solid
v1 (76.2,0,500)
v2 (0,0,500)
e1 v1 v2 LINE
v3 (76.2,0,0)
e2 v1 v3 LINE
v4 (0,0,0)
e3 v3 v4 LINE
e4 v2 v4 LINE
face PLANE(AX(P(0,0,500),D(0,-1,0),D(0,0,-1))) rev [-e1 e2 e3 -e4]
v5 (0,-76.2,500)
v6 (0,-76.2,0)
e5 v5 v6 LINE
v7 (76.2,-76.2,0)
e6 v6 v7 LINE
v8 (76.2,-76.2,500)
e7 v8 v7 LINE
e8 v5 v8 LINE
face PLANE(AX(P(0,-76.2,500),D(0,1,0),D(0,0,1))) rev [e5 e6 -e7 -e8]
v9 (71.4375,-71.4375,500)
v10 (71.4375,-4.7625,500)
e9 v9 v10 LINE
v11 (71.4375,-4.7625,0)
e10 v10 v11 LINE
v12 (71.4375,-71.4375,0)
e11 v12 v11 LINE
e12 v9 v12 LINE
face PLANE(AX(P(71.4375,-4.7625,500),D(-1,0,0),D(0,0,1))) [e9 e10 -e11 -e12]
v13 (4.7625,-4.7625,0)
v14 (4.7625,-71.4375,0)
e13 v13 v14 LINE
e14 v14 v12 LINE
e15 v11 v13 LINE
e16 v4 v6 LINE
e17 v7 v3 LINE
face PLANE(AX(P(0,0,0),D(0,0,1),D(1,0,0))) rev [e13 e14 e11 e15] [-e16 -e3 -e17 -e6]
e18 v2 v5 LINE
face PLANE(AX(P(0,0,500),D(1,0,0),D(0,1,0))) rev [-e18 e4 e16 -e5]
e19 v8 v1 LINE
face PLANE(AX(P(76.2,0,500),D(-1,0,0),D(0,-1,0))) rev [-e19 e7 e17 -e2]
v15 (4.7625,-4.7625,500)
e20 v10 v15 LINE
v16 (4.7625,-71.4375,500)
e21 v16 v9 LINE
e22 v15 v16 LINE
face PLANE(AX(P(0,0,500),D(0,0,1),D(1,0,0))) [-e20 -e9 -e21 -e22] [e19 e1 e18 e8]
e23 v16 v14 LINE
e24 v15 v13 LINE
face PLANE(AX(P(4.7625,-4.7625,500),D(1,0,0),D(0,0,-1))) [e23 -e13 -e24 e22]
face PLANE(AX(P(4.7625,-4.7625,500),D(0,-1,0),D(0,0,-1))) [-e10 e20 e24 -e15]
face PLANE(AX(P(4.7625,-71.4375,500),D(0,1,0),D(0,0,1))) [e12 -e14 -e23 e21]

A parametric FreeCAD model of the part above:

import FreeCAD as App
import Part
import Sketcher
from FreeCAD import Vector
Q = App.Units.Quantity


def add_polygon(sketch, points):
    """Adds a closed chain of lines whose ends are joined by coincident constraints."""
    first, n = sketch.GeometryCount, len(points)
    for a, b in zip(points, points[1:] + points[:1]):
        sketch.addGeometry(Part.LineSegment(App.Vector(*a, 0), App.Vector(*b, 0)), False)
    for i in range(n):
        sketch.addConstraint(Sketcher.Constraint("Coincident", first + i, 2, first + (i + 1) % n, 1))

doc = App.newDocument("Part")
body = doc.addObject("PartDesign::Body", "Body")

# Sketch on XY plane
sketch1 = body.newObject("Sketcher::SketchObject", "Sketch")
sketch1.AttachmentSupport = (doc.getObject("XY_Plane"), [""])
sketch1.MapMode = "FlatFace"
add_polygon(sketch1, [(0, 0), (0, -76.2), (76.2, -76.2), (76.2, 0)])  # lines 0-3
add_polygon(sketch1, [(71.4375, -71.4375), (4.7625, -71.4375), (4.7625, -4.7625), (71.4375, -4.7625)])  # lines 4-7
sketch1.addConstraint([
    Sketcher.Constraint("Vertical", 0),
    Sketcher.Constraint("Horizontal", 1),
    Sketcher.Constraint("Vertical", 2),
    Sketcher.Constraint("Horizontal", 3),
    Sketcher.Constraint("Horizontal", 4),
    Sketcher.Constraint("Vertical", 5),
    Sketcher.Constraint("Horizontal", 6),
    Sketcher.Constraint("Vertical", 7),
    Sketcher.Constraint("Coincident", 3, 2, -1, 1),
    Sketcher.Constraint("Equal", 3, 0),
    Sketcher.Constraint("Equal", 6, 5),
    Sketcher.Constraint("DistanceX", 1, 1, 1, 2, Q("3 in")),
    Sketcher.Constraint("DistanceX", 4, 2, 4, 1, Q("2.625 in")),
    Sketcher.Constraint("DistanceX", -1, 1, 4, 2, Q("0.1875 in")),
    Sketcher.Constraint("DistanceY", 4, 2, -1, 1, Q("2.8125 in")),
])
pad1 = body.newObject("PartDesign::Pad", "Pad")
pad1.Profile = sketch1
pad1.Length = 500

doc.recompute()
